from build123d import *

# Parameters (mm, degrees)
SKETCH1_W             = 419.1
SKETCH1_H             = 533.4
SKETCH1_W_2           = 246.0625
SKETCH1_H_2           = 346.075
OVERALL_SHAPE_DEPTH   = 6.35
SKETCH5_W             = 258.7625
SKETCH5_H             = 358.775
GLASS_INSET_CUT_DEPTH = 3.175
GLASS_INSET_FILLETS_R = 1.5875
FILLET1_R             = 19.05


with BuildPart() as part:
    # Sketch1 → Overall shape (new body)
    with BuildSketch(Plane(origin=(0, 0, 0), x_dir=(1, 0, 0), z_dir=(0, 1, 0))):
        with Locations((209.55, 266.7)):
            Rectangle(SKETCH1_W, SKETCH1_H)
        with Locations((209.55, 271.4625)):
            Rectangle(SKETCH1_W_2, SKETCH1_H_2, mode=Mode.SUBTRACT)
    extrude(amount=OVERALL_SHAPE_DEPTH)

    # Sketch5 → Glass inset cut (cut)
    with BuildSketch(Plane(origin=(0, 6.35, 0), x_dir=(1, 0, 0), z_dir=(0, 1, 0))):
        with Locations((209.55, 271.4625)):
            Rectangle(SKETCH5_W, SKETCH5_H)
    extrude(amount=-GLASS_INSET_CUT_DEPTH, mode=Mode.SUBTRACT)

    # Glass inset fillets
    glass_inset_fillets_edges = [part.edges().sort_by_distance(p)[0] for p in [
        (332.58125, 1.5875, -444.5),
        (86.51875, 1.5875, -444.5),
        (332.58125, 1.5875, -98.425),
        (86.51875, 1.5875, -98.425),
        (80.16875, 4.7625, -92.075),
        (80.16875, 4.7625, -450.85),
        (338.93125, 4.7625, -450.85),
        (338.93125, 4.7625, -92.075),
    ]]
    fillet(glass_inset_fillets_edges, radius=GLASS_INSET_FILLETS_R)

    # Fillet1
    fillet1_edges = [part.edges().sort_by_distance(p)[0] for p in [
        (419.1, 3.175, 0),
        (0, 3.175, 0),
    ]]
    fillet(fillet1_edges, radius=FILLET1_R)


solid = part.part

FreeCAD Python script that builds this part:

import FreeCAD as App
import Part
import Sketcher
Q = App.Units.Quantity


def edges_at(feature, points):
    """Names of the edges that pass closest to the given points."""
    edges = feature.Shape.Edges
    near = lambda p: min(range(len(edges)), key=lambda i: edges[i].distToShape(Part.Vertex(*p))[0])
    return sorted({f"Edge{near(p) + 1}" for p in points})


def add_polygon(sketch, points):
    """Adds a closed chain of lines whose ends are joined by coincident constraints."""
    first, n = sketch.GeometryCount, len(points)
    for a, b in zip(points, points[1:] + points[:1]):
        sketch.addGeometry(Part.LineSegment(App.Vector(*a, 0), App.Vector(*b, 0)), False)
    for i in range(n):
        sketch.addConstraint(Sketcher.Constraint("Coincident", first + i, 2, first + (i + 1) % n, 1))

doc = App.newDocument("Part")
body = doc.addObject("PartDesign::Body", "Body")

# Sketch on XZ plane
sketch1 = body.newObject("Sketcher::SketchObject", "Sketch")
sketch1.AttachmentSupport = (doc.getObject("XZ_Plane"), [""])
sketch1.MapMode = "FlatFace"
add_polygon(sketch1, [(0, -533), (0, 0), (419, 0), (419, -533)])  # lines 0-3
add_polygon(sketch1, [(333, -98), (87, -98), (87, -444), (333, -444)])  # lines 4-7
sketch1.addConstraint([
    Sketcher.Constraint("Vertical", 0),
    Sketcher.Constraint("Horizontal", 1),
    Sketcher.Constraint("Vertical", 2),
    Sketcher.Constraint("Horizontal", 3),
    Sketcher.Constraint("Horizontal", 4),
    Sketcher.Constraint("Vertical", 5),
    Sketcher.Constraint("Horizontal", 6),
    Sketcher.Constraint("Vertical", 7),
    Sketcher.Constraint("Coincident", 0, 2, -1, 1),
    Sketcher.Constraint("DistanceY", 0, 1, 0, 2, Q("21 in")),
    Sketcher.Constraint("DistanceX", 1, 1, 1, 2, Q("16.5 in")),
    Sketcher.Constraint("DistanceY", 5, 2, -1, 1, Q("17.5 in")),
    Sketcher.Constraint("DistanceX", 4, 2, 4, 1, Q("9.6875 in")),
    Sketcher.Constraint("DistanceY", 5, 2, 5, 1, Q("13.625 in")),
    Sketcher.Constraint("DistanceX", -1, 1, 4, 2, Q("3.40625 in")),
])
pad1 = body.newObject("PartDesign::Pad", "Pad")
pad1.Profile = sketch1
pad1.Length = Q("0.25 in")
pad1.Reversed = True

# Sketch on XZ plane
sketch2 = body.newObject("Sketcher::SketchObject", "Sketch001")
sketch2.AttachmentSupport = (doc.getObject("XZ_Plane"), [""])
sketch2.MapMode = "FlatFace"
sketch2.AttachmentOffset = App.Placement(App.Vector(0, 0, -0.25 * 25.4), App.Rotation())
add_polygon(sketch2, [(80, -451), (80, -92), (339, -92), (339, -451)])  # lines 0-3
sketch2.addConstraint([
    Sketcher.Constraint("Vertical", 0),
    Sketcher.Constraint("Horizontal", 1),
    Sketcher.Constraint("Vertical", 2),
    Sketcher.Constraint("Horizontal", 3),
    Sketcher.Constraint("DistanceX", 1, 1, 1, 2, Q("10.1875 in")),
    Sketcher.Constraint("DistanceY", 0, 1, 0, 2, Q("14.125 in")),
    Sketcher.Constraint("DistanceY", 2, 2, -1, 1, Q("17.75 in")),
    Sketcher.Constraint("DistanceX", -1, 1, 0, 2, Q("3.15625 in")),
])
pocket1 = body.newObject("PartDesign::Pocket", "Pocket")
pocket1.Profile = sketch2
pocket1.Length = Q("0.125 in")
pocket1.Reversed = True
doc.recompute()

fillet = body.newObject("PartDesign::Fillet", "Fillet")
fillet.Base = (pocket1, edges_at(pocket1, [
    (332.581, 1.587, -444.5),
    (86.519, 1.587, -444.5),
    (332.581, 1.587, -98.425),
    (86.519, 1.587, -98.425),
    (80.169, 4.763, -92.075),
    (80.169, 4.763, -450.85),
    (338.931, 4.763, -450.85),
    (338.931, 4.763, -92.075),
]))
fillet.Radius = Q("0.0625 in")
doc.recompute()

fillet2 = body.newObject("PartDesign::Fillet", "Fillet001")
fillet2.Base = (fillet, edges_at(fillet, [(419.1, 3.175, 0), (0, 3.175, 0)]))
fillet2.Radius = Q("0.75 in")

doc.recompute()
